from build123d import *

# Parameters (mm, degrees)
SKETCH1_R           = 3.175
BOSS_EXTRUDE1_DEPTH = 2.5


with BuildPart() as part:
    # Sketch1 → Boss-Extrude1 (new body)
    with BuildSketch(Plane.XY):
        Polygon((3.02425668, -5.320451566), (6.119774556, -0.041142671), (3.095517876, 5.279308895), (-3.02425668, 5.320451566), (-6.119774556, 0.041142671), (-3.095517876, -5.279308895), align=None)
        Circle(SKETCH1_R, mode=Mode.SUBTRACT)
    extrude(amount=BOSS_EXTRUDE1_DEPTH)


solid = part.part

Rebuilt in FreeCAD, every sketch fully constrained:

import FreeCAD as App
import Part
import Sketcher
Q = App.Units.Quantity


def add_polygon(sketch, points):
    """Adds a closed chain of lines whose ends are joined by coincident constraints."""
    first, n = sketch.GeometryCount, len(points)
    for a, b in zip(points, points[1:] + points[:1]):
        sketch.addGeometry(Part.LineSegment(App.Vector(*a, 0), App.Vector(*b, 0)), False)
    for i in range(n):
        sketch.addConstraint(Sketcher.Constraint("Coincident", first + i, 2, first + (i + 1) % n, 1))

doc = App.newDocument("Part")
body = doc.addObject("PartDesign::Body", "Body")

# Sketch on XY plane
sketch1 = doc.addObject("Sketcher::SketchObject", "Sketch")
body.addObject(sketch1)
sketch1.AttachmentSupport = (doc.XY_Plane, [""])
sketch1.MapMode = "FlatFace"
add_polygon(sketch1, [(3, -5.3), (6.1, 0), (3.1, 5.3), (-3, 5.3), (-6.1, 0), (-3.1, -5.3)])  # lines 0-5
sketch1.addGeometry(Part.Circle(App.Vector(0, 0, 0), App.Vector(0, 0, 1), 3.2), False)  # 6
sketch1.addConstraint(Sketcher.Constraint("Coincident", 6, 3, -1, 1))
sketch1.addConstraint(Sketcher.Constraint("Symmetric", 0, 2, 3, 2, -1, 1))
sketch1.addConstraint(Sketcher.Constraint("Symmetric", 1, 2, 4, 2, -1, 1))
sketch1.addConstraint(Sketcher.Constraint("Symmetric", 2, 2, 5, 2, -1, 1))
sketch1.addConstraint(Sketcher.Constraint("Equal", 0, 1))
sketch1.addConstraint(Sketcher.Constraint("Equal", 1, 2))
sketch1.addConstraint(Sketcher.Constraint("Diameter", 6, Q("6.35 mm")))
sketch1.addConstraint(Sketcher.Constraint("DistanceY", -1, 1, 1, 2, Q("5.279309 mm")))
sketch1.addConstraint(Sketcher.Constraint("DistanceY", -1, 1, 2, 2, Q("5.320452 mm")))
sketch1.addConstraint(Sketcher.Constraint("DistanceY", 0, 2, 1, 2, Q("5.320452 mm")))
sketch1.addConstraint(Sketcher.Constraint("DistanceX", 2, 2, 0, 2, Q("9.144031 mm")))
pad1 = doc.addObject("PartDesign::Pad", "Pad")
body.addObject(pad1)
pad1.Profile = sketch1
pad1.Length = 2.5

doc.recompute()
